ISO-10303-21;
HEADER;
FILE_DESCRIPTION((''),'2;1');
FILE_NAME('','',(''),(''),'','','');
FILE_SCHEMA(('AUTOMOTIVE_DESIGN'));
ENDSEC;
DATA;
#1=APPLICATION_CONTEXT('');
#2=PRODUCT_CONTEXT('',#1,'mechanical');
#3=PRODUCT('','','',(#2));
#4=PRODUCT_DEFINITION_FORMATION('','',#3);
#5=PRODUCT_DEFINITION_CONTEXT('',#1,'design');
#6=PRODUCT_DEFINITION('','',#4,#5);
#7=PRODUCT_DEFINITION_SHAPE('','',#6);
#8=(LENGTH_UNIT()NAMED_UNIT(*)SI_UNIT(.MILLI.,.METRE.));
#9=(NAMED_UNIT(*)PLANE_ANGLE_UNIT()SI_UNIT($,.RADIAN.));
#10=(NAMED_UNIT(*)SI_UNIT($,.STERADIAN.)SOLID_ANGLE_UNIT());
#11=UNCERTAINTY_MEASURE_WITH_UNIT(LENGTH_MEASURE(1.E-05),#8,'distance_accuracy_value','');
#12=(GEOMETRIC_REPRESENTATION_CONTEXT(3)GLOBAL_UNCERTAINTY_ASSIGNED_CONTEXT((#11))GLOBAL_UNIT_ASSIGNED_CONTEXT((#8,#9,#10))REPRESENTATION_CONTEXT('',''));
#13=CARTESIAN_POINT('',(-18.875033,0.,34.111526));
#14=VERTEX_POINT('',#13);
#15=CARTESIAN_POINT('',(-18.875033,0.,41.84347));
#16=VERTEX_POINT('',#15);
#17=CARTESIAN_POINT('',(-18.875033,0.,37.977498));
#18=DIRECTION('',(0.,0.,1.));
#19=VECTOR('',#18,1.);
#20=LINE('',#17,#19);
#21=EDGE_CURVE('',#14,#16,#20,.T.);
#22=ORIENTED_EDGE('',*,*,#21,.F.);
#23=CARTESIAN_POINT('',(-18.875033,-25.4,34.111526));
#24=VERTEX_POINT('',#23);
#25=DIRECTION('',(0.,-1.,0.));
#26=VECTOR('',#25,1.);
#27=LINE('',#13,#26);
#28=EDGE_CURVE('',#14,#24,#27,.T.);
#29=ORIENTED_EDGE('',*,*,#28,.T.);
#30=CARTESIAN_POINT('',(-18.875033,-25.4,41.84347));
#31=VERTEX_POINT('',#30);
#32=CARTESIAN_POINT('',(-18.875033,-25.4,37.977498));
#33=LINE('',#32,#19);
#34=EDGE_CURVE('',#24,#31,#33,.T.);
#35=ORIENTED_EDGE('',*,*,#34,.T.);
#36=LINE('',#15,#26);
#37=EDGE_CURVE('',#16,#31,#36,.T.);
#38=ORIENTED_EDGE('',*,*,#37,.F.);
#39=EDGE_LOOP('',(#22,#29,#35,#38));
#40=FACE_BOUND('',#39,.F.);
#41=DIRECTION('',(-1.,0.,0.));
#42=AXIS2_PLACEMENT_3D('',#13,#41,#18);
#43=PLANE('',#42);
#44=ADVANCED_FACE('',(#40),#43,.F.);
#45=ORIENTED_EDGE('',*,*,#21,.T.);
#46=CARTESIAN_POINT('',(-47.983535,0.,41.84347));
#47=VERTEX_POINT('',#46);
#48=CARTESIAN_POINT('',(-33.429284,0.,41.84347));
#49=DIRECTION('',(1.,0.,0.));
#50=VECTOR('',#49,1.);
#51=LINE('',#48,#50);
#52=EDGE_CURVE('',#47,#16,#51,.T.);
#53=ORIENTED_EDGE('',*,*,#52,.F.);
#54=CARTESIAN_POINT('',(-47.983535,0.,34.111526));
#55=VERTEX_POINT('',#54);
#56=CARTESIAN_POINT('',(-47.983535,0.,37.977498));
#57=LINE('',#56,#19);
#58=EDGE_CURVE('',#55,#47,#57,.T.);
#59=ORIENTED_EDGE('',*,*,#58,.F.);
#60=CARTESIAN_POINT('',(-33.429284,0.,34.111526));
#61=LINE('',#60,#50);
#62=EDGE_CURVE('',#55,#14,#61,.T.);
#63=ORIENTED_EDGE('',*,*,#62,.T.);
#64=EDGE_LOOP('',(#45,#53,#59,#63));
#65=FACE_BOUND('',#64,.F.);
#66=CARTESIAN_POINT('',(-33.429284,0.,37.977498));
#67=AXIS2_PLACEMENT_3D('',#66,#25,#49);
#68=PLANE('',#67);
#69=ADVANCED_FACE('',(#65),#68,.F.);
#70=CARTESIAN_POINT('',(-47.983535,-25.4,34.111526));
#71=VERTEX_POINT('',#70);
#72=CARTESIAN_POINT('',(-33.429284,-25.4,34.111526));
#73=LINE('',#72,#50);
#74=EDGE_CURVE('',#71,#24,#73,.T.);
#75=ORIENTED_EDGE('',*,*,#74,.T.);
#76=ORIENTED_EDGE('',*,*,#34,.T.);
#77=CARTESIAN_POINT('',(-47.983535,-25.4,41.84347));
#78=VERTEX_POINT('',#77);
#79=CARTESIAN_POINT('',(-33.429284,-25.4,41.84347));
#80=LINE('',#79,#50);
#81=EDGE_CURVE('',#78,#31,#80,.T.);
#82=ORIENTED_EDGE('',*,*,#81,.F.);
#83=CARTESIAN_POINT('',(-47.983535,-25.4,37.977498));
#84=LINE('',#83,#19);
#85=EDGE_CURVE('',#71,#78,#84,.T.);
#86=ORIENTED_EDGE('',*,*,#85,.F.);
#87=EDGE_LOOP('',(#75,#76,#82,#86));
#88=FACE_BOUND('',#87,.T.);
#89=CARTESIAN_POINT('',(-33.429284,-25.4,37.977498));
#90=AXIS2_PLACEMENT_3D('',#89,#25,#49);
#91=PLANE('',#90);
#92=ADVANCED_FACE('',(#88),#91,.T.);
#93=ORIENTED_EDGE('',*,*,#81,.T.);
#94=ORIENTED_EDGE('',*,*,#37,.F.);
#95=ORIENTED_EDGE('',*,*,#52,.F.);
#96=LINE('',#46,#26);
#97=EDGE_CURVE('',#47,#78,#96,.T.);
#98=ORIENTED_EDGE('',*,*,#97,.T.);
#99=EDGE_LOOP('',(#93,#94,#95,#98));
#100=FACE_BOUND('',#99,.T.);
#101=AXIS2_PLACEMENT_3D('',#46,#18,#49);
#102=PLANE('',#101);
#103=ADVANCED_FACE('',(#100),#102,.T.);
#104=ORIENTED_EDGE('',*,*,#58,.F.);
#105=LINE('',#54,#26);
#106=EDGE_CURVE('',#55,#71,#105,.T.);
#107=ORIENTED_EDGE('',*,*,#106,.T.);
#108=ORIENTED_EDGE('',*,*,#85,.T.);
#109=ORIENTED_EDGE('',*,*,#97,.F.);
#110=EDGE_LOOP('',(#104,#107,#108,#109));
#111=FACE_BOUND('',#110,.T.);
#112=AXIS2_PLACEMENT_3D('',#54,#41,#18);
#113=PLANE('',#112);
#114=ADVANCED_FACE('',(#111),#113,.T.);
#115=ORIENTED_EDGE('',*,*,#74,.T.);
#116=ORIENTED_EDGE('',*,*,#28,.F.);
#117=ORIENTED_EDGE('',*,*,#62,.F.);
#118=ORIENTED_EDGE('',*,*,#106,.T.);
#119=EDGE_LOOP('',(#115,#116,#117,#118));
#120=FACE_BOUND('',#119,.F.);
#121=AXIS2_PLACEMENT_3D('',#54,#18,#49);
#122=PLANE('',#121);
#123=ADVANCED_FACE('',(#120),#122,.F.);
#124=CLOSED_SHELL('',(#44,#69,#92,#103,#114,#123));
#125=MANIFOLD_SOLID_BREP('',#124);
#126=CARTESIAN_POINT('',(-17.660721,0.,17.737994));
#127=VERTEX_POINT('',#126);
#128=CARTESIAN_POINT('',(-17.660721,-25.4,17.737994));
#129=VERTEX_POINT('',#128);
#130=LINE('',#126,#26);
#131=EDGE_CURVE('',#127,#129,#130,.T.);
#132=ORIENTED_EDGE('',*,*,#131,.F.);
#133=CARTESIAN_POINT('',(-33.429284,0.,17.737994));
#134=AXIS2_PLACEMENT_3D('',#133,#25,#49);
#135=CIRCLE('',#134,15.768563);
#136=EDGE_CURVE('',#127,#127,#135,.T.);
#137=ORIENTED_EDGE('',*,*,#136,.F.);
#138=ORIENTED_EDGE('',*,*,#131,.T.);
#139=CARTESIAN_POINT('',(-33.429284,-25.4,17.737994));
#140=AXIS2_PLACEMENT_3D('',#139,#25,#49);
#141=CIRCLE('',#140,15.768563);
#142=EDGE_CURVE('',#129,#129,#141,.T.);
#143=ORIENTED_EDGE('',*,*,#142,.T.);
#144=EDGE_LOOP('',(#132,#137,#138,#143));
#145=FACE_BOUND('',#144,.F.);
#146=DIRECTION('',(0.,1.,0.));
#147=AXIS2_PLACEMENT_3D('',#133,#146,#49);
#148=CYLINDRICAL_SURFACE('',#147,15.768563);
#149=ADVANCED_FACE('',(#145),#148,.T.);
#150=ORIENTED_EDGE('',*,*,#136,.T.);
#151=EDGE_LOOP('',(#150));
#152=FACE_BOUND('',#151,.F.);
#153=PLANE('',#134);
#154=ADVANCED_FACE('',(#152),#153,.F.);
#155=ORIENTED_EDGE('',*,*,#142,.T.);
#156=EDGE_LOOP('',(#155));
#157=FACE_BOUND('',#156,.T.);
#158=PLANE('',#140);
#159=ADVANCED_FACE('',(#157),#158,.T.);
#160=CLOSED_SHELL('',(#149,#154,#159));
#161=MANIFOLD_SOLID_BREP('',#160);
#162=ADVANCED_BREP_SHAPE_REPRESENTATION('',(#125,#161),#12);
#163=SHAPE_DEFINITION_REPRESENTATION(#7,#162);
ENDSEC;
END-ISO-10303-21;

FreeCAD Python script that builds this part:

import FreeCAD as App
import Part
import Sketcher
from FreeCAD import Vector
Q = App.Units.Quantity

doc = App.newDocument("Part")
params = doc.addObject("Spreadsheet::Sheet", "Params")
for row, (alias, value) in enumerate([
    ("pad1_length", "1 in"),
], start=1):
    params.set(f"A{row}", alias)
    params.set(f"B{row}", "=" + value)
    params.setAlias(f"B{row}", alias)

body = doc.addObject("PartDesign::Body", "Body")
body.AllowCompound = True

# Sketch on XZ plane
sketch1 = body.newObject("Sketcher::SketchObject", "Sketch")
sketch1.AttachmentSupport = (doc.getObject("XZ_Plane"), [""])
sketch1.MapMode = "FlatFace"
sketch1.addGeometry(Part.Circle(Vector(-33.429284, 17.737994, 0), Vector(0, 0, 1), 15.768563), False)
sketch1.addGeometry(Part.LineSegment(Vector(-47.983535, 41.84347, 0), Vector(-47.983535, 34.111526, 0)), False)
sketch1.addGeometry(Part.LineSegment(Vector(-47.983535, 34.111526, 0), Vector(-18.875033, 34.111526, 0)), False)
sketch1.addGeometry(Part.LineSegment(Vector(-18.875033, 34.111526, 0), Vector(-18.875033, 41.84347, 0)), False)
sketch1.addGeometry(Part.LineSegment(Vector(-18.875033, 41.84347, 0), Vector(-47.983535, 41.84347, 0)), False)
sketch1.addConstraint(Sketcher.Constraint("Coincident", 1, 2, 2, 1))
sketch1.addConstraint(Sketcher.Constraint("Coincident", 2, 2, 3, 1))
sketch1.addConstraint(Sketcher.Constraint("Coincident", 3, 2, 4, 1))
sketch1.addConstraint(Sketcher.Constraint("Coincident", 4, 2, 1, 1))
sketch1.addConstraint(Sketcher.Constraint("Vertical", 1))
sketch1.addConstraint(Sketcher.Constraint("Horizontal", 2))
sketch1.addConstraint(Sketcher.Constraint("Vertical", 3))
sketch1.addConstraint(Sketcher.Constraint("Horizontal", 4))
sketch1.addConstraint(Sketcher.Constraint("Diameter", 0, Q("31.537126 mm")))
sketch1.addConstraint(Sketcher.Constraint("DistanceX", 2, 1, 2, 2, Q("29.108502 mm")))
sketch1.addConstraint(Sketcher.Constraint("DistanceY", 1, 2, 1, 1, Q("7.731944 mm")))
sketch1.addConstraint(Sketcher.Constraint("DistanceY", -1, 1, 3, 2, Q("41.84347 mm")))
sketch1.addConstraint(Sketcher.Constraint("DistanceX", 1, 2, 0, 3, Q("14.554251 mm")))
sketch1.addConstraint(Sketcher.Constraint("DistanceY", 0, 3, 1, 2, Q("16.373532 mm")))
sketch1.addConstraint(Sketcher.Constraint("DistanceX", 0, 3, -1, 1, Q("33.429284 mm")))
pad1 = body.newObject("PartDesign::Pad", "Pad")
pad1.Profile = sketch1
pad1.setExpression("Length", "Params.pad1_length")

doc.recompute()
